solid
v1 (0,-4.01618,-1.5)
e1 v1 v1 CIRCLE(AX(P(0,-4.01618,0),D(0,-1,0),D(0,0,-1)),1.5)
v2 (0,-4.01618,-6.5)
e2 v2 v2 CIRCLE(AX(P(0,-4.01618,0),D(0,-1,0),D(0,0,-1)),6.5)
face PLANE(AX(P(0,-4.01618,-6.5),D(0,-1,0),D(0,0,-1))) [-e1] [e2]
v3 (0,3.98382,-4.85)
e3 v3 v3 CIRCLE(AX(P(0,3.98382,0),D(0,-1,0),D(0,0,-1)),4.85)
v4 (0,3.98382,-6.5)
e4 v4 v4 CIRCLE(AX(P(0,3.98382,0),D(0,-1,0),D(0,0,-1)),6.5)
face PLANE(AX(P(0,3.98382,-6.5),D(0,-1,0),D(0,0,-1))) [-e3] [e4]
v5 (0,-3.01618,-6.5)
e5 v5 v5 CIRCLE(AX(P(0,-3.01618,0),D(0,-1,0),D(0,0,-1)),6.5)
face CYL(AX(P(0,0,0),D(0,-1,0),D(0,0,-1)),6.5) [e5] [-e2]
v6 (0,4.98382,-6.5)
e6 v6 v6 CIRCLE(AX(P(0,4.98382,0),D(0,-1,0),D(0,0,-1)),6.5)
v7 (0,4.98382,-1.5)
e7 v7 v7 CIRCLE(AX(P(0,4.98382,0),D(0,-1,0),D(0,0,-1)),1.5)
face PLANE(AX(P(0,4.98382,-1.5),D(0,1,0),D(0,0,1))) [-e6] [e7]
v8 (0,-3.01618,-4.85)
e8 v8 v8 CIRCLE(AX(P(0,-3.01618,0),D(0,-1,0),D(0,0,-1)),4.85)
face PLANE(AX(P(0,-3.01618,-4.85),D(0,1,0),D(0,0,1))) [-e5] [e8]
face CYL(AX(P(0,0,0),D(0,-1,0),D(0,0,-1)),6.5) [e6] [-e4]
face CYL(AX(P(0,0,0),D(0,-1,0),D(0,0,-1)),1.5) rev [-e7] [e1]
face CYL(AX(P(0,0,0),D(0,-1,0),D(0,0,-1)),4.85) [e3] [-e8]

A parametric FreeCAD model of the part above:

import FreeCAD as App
import Part
import Sketcher
from FreeCAD import Vector

doc = App.newDocument("Part")
body = doc.addObject("PartDesign::Body", "Body")

sketch1 = body.newObject("Sketcher::SketchObject", "Sketch")
sketch1.AttachmentSupport = (doc.getObject("YZ_Plane"), [""])
sketch1.MapMode = "FlatFace"
sketch1.addGeometry([
    Part.LineSegment(Vector(-3.01618, -4.85, 0), Vector(3.98382, -4.85, 0)),
    Part.LineSegment(Vector(3.98382, -4.85, 0), Vector(3.98382, -6.5, 0)),
    Part.LineSegment(Vector(3.98382, -6.5, 0), Vector(4.98382, -6.5, 0)),
    Part.LineSegment(Vector(4.98382, -6.5, 0), Vector(4.98382, -1.5, 0)),
    Part.LineSegment(Vector(4.98382, -1.5, 0), Vector(-4.01618, -1.5, 0)),
    Part.LineSegment(Vector(-4.01618, -1.5, 0), Vector(-4.01618, -6.5, 0)),
    Part.LineSegment(Vector(-4.01618, -6.5, 0), Vector(-3.01618, -6.5, 0)),
    Part.LineSegment(Vector(-3.01618, -6.5, 0), Vector(-3.01618, -4.85, 0)),
], False)
sketch1.addConstraint([
    Sketcher.Constraint("Coincident", 0, 2, 1, 1),
    Sketcher.Constraint("Coincident", 1, 2, 2, 1),
    Sketcher.Constraint("Coincident", 2, 2, 3, 1),
    Sketcher.Constraint("Coincident", 3, 2, 4, 1),
    Sketcher.Constraint("Coincident", 4, 2, 5, 1),
    Sketcher.Constraint("Coincident", 5, 2, 6, 1),
    Sketcher.Constraint("Coincident", 6, 2, 7, 1),
    Sketcher.Constraint("Coincident", 7, 2, 0, 1),
    Sketcher.Constraint("Horizontal", 0),
    Sketcher.Constraint("Vertical", 1),
    Sketcher.Constraint("Horizontal", 2),
    Sketcher.Constraint("Vertical", 3),
    Sketcher.Constraint("Horizontal", 4),
    Sketcher.Constraint("Vertical", 5),
    Sketcher.Constraint("Horizontal", 6),
    Sketcher.Constraint("Vertical", 7),
    Sketcher.Constraint("Horizontal", 2, 2, 5, 2),
    Sketcher.Constraint("Equal", 2, 6),
    Sketcher.Constraint("DistanceX", 0, 1, 0, 2, 7.0),
    Sketcher.Constraint("DistanceX", 2, 1, 2, 2, 1.0),
    Sketcher.Constraint("DistanceY", 3, 1, 3, 2, 5.0),
    Sketcher.Constraint("DistanceY", 1, 2, 1, 1, 1.65),
    Sketcher.Constraint("DistanceY", 1, 2, -1, 1, 6.5),
    Sketcher.Constraint("DistanceX", -1, 1, 0, 2, 3.98382),
])
revolution = body.newObject("PartDesign::Revolution", "Revolution")
revolution.Profile = sketch1
revolution.ReferenceAxis = (sketch1, ["H_Axis"])
revolution.Angle = 360

doc.recompute()
